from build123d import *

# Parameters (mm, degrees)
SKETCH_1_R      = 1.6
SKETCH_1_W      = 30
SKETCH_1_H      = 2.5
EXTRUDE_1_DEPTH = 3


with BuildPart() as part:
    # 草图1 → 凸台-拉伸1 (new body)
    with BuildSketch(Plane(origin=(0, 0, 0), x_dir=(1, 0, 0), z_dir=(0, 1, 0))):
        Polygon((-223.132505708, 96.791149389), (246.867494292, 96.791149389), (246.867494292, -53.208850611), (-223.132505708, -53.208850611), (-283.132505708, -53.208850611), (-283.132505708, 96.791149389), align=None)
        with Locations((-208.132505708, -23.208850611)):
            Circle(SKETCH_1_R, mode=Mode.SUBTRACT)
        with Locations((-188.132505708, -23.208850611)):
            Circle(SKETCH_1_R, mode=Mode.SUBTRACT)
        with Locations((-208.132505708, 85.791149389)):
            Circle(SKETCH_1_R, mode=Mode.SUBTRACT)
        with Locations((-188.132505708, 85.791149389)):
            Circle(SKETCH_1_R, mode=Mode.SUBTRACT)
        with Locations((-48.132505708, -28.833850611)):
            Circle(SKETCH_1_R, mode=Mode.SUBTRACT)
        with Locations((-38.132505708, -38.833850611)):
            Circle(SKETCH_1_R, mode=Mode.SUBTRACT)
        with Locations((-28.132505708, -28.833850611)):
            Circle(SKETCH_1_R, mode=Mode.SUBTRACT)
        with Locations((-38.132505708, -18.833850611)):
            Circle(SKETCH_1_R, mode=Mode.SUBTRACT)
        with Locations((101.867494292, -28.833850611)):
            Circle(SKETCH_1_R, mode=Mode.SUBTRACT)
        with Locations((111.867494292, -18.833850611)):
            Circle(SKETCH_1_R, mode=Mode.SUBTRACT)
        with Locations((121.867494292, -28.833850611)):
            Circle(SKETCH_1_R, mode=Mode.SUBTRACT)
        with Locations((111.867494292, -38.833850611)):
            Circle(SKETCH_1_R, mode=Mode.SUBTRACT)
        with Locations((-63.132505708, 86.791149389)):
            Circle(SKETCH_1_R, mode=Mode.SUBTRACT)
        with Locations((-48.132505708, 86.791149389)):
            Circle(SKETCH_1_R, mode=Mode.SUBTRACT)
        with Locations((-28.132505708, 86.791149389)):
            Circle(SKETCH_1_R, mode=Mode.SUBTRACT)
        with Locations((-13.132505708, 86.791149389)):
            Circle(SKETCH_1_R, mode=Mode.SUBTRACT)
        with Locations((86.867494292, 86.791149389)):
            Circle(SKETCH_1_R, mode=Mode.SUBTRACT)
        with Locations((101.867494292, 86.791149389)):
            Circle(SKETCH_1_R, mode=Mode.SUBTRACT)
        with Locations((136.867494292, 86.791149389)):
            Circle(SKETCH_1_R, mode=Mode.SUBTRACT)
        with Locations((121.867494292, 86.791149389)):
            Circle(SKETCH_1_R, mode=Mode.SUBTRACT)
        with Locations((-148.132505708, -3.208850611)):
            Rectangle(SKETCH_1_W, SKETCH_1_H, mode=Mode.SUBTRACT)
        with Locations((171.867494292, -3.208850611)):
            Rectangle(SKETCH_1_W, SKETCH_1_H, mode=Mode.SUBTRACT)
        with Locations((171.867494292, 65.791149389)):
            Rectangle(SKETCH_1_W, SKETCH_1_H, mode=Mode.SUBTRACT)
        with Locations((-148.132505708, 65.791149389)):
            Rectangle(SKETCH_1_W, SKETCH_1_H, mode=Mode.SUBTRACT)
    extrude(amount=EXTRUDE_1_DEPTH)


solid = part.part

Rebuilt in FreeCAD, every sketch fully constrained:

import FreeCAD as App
import Part
import Sketcher
from FreeCAD import Vector


def add_polygon(sketch, points):
    """Adds a closed chain of lines whose ends are joined by coincident constraints."""
    first, n = sketch.GeometryCount, len(points)
    for a, b in zip(points, points[1:] + points[:1]):
        sketch.addGeometry(Part.LineSegment(App.Vector(*a, 0), App.Vector(*b, 0)), False)
    for i in range(n):
        sketch.addConstraint(Sketcher.Constraint("Coincident", first + i, 2, first + (i + 1) % n, 1))

doc = App.newDocument("Part")
body = doc.addObject("PartDesign::Body", "Body")

sketch1 = body.newObject("Sketcher::SketchObject", "Sketch")
sketch1.AttachmentSupport = (doc.getObject("XZ_Plane"), [""])
sketch1.MapMode = "FlatFace"
add_polygon(sketch1, [(246.9, -96.8), (-283.1, -96.8), (-283.1, 53.2), (246.9, 53.2)])
sketch1.addGeometry(Part.Circle(Vector(111.9, 38.8, 0), Vector(0, 0, 1), 1.6), False)
sketch1.addGeometry(Part.Circle(Vector(121.9, 28.8, 0), Vector(0, 0, 1), 1.6), False)
sketch1.addGeometry(Part.Circle(Vector(101.9, 28.8, 0), Vector(0, 0, 1), 1.6), False)
sketch1.addGeometry(Part.Circle(Vector(111.9, 18.8, 0), Vector(0, 0, 1), 1.6), False)
add_polygon(sketch1, [(156.9, 4.5), (156.9, 2), (186.9, 2), (186.9, 4.5)])
sketch1.addGeometry(Part.Circle(Vector(-38.1, 38.8, 0), Vector(0, 0, 1), 1.6), False)
sketch1.addGeometry(Part.Circle(Vector(-28.1, 28.8, 0), Vector(0, 0, 1), 1.6), False)
sketch1.addGeometry(Part.Circle(Vector(-48.1, 28.8, 0), Vector(0, 0, 1), 1.6), False)
sketch1.addGeometry(Part.Circle(Vector(-38.1, 18.8, 0), Vector(0, 0, 1), 1.6), False)
sketch1.addGeometry(Part.Circle(Vector(-188.1, 23.2, 0), Vector(0, 0, 1), 1.6), False)
sketch1.addGeometry(Part.Circle(Vector(-208.1, 23.2, 0), Vector(0, 0, 1), 1.6), False)
add_polygon(sketch1, [(-163.1, 4.5), (-163.1, 2), (-133.1, 2), (-133.1, 4.5)])
add_polygon(sketch1, [(156.9, -64.5), (156.9, -67), (186.9, -67), (186.9, -64.5)])
sketch1.addGeometry(Part.Circle(Vector(136.9, -86.8, 0), Vector(0, 0, 1), 1.6), False)
sketch1.addGeometry(Part.Circle(Vector(121.9, -86.8, 0), Vector(0, 0, 1), 1.6), False)
sketch1.addGeometry(Part.Circle(Vector(101.9, -86.8, 0), Vector(0, 0, 1), 1.6), False)
sketch1.addGeometry(Part.Circle(Vector(86.9, -86.8, 0), Vector(0, 0, 1), 1.6), False)
sketch1.addGeometry(Part.Circle(Vector(-13.1, -86.8, 0), Vector(0, 0, 1), 1.6), False)
sketch1.addGeometry(Part.Circle(Vector(-28.1, -86.8, 0), Vector(0, 0, 1), 1.6), False)
sketch1.addGeometry(Part.Circle(Vector(-48.1, -86.8, 0), Vector(0, 0, 1), 1.6), False)
sketch1.addGeometry(Part.Circle(Vector(-63.1, -86.8, 0), Vector(0, 0, 1), 1.6), False)
add_polygon(sketch1, [(-163.1, -64.5), (-163.1, -67), (-133.1, -67), (-133.1, -64.5)])
sketch1.addGeometry(Part.Circle(Vector(-188.1, -85.8, 0), Vector(0, 0, 1), 1.6), False)
sketch1.addGeometry(Part.Circle(Vector(-208.1, -85.8, 0), Vector(0, 0, 1), 1.6), False)
sketch1.addConstraint([
    Sketcher.Constraint("Horizontal", 0),
    Sketcher.Constraint("Vertical", 1),
    Sketcher.Constraint("Horizontal", 2),
    Sketcher.Constraint("Vertical", 3),
    Sketcher.Constraint("Vertical", 8),
    Sketcher.Constraint("Horizontal", 9),
    Sketcher.Constraint("Vertical", 10),
    Sketcher.Constraint("Horizontal", 11),
    Sketcher.Constraint("Vertical", 18),
    Sketcher.Constraint("Horizontal", 19),
    Sketcher.Constraint("Vertical", 20),
    Sketcher.Constraint("Horizontal", 21),
    Sketcher.Constraint("Vertical", 22),
    Sketcher.Constraint("Horizontal", 23),
    Sketcher.Constraint("Vertical", 24),
    Sketcher.Constraint("Horizontal", 25),
    Sketcher.Constraint("Vertical", 34),
    Sketcher.Constraint("Horizontal", 35),
    Sketcher.Constraint("Vertical", 36),
    Sketcher.Constraint("Horizontal", 37),
    Sketcher.Constraint("Equal", 4, 5),
    Sketcher.Constraint("Equal", 5, 6),
    Sketcher.Constraint("Equal", 6, 7),
    Sketcher.Constraint("Equal", 7, 12),
    Sketcher.Constraint("Equal", 12, 13),
    Sketcher.Constraint("Equal", 13, 14),
    Sketcher.Constraint("Equal", 14, 15),
    Sketcher.Constraint("Equal", 15, 16),
    Sketcher.Constraint("Equal", 16, 17),
    Sketcher.Constraint("Equal", 17, 26),
    Sketcher.Constraint("Equal", 26, 27),
    Sketcher.Constraint("Equal", 27, 28),
    Sketcher.Constraint("Equal", 28, 29),
    Sketcher.Constraint("Equal", 29, 30),
    Sketcher.Constraint("Equal", 30, 31),
    Sketcher.Constraint("Equal", 31, 32),
    Sketcher.Constraint("Equal", 32, 33),
    Sketcher.Constraint("Equal", 33, 38),
    Sketcher.Constraint("Equal", 38, 39),
    Sketcher.Constraint("Horizontal", 5, 3, 6, 3),
    Sketcher.Constraint("Horizontal", 4, 3, 12, 3),
    Sketcher.Constraint("Horizontal", 6, 3, 13, 3),
    Sketcher.Constraint("Horizontal", 13, 3, 14, 3),
    Sketcher.Constraint("Horizontal", 7, 3, 15, 3),
    Sketcher.Constraint("Horizontal", 16, 3, 17, 3),
    Sketcher.Constraint("Horizontal", 26, 3, 27, 3),
    Sketcher.Constraint("Horizontal", 27, 3, 28, 3),
    Sketcher.Constraint("Horizontal", 28, 3, 29, 3),
    Sketcher.Constraint("Horizontal", 29, 3, 30, 3),
    Sketcher.Constraint("Horizontal", 30, 3, 31, 3),
    Sketcher.Constraint("Horizontal", 31, 3, 32, 3),
    Sketcher.Constraint("Horizontal", 32, 3, 33, 3),
    Sketcher.Constraint("Horizontal", 38, 3, 39, 3),
    Sketcher.Constraint("Horizontal", 9, 2, 18, 2),
    Sketcher.Constraint("Horizontal", 11, 2, 20, 2),
    Sketcher.Constraint("Horizontal", 23, 2, 34, 2),
    Sketcher.Constraint("Horizontal", 25, 2, 36, 2),
    Sketcher.Constraint("Vertical", 4, 3, 7, 3),
    Sketcher.Constraint("Vertical", 12, 3, 15, 3),
    Sketcher.Constraint("Vertical", 5, 3, 27, 3),
    Sketcher.Constraint("Vertical", 6, 3, 28, 3),
    Sketcher.Constraint("Vertical", 13, 3, 31, 3),
    Sketcher.Constraint("Vertical", 14, 3, 32, 3),
    Sketcher.Constraint("Vertical", 16, 3, 38, 3),
    Sketcher.Constraint("Vertical", 17, 3, 39, 3),
    Sketcher.Constraint("Vertical", 11, 2, 22, 2),
    Sketcher.Constraint("Vertical", 10, 2, 23, 2),
    Sketcher.Constraint("Vertical", 21, 2, 34, 2),
    Sketcher.Constraint("Vertical", 20, 2, 35, 2),
    Sketcher.Constraint("Equal", 11, 19),
    Sketcher.Constraint("Equal", 20, 22),
    Sketcher.Constraint("Diameter", 4, 3.2),
    Sketcher.Constraint("DistanceX", 0, 2, 0, 1, 530.0),
    Sketcher.Constraint("DistanceX", 9, 1, 9, 2, 30.0),
    Sketcher.Constraint("DistanceY", 1, 1, 1, 2, 150.0),
    Sketcher.Constraint("DistanceY", 8, 2, 8, 1, 2.5),
    Sketcher.Constraint("DistanceX", 4, 3, 5, 3, 10.0),
    Sketcher.Constraint("DistanceY", 5, 3, 4, 3, 10.0),
    Sketcher.Constraint("DistanceX", 6, 3, 4, 3, 10.0),
    Sketcher.Constraint("DistanceY", 7, 3, 5, 3, 10.0),
    Sketcher.Constraint("DistanceX", 12, 3, 6, 3, 140.0),
    Sketcher.Constraint("DistanceX", 12, 3, 13, 3, 10.0),
    Sketcher.Constraint("DistanceX", 14, 3, 12, 3, 10.0),
    Sketcher.Constraint("DistanceX", 16, 3, 14, 3, 140.0),
    Sketcher.Constraint("DistanceX", 17, 3, 16, 3, 20.0),
    Sketcher.Constraint("DistanceX", 7, 3, 26, 3, 25.0),
    Sketcher.Constraint("DistanceX", 29, 3, 28, 3, 15.0),
    Sketcher.Constraint("DistanceX", 30, 3, 29, 3, 100.0),
    Sketcher.Constraint("DistanceX", 33, 3, 32, 3, 15.0),
    Sketcher.Constraint("DistanceY", 38, 3, 16, 3, 109.0),
    Sketcher.Constraint("DistanceY", 33, 3, 38, 3, 1.0),
    Sketcher.Constraint("DistanceX", 0, 2, 39, 3, 75.0),
    Sketcher.Constraint("DistanceY", 0, 2, 39, 3, 11.0),
    Sketcher.Constraint("DistanceX", 5, 3, 8, 2, 35.0),
    Sketcher.Constraint("DistanceX", 16, 3, 18, 2, 25.0),
    Sketcher.Constraint("DistanceY", 22, 2, 8, 2, 69.0),
    Sketcher.Constraint("DistanceY", 26, 3, 8, 2, 88.75),
    Sketcher.Constraint("DistanceY", 16, 3, 14, 3, 5.625),
    Sketcher.Constraint("DistanceY", -1, 1, 4, 3, 38.833851),
    Sketcher.Constraint("DistanceX", -1, 1, 4, 3, 111.867494),
])
pad1 = body.newObject("PartDesign::Pad", "Pad")
pad1.Profile = sketch1
pad1.Length = 3
pad1.Reversed = True

doc.recompute()
